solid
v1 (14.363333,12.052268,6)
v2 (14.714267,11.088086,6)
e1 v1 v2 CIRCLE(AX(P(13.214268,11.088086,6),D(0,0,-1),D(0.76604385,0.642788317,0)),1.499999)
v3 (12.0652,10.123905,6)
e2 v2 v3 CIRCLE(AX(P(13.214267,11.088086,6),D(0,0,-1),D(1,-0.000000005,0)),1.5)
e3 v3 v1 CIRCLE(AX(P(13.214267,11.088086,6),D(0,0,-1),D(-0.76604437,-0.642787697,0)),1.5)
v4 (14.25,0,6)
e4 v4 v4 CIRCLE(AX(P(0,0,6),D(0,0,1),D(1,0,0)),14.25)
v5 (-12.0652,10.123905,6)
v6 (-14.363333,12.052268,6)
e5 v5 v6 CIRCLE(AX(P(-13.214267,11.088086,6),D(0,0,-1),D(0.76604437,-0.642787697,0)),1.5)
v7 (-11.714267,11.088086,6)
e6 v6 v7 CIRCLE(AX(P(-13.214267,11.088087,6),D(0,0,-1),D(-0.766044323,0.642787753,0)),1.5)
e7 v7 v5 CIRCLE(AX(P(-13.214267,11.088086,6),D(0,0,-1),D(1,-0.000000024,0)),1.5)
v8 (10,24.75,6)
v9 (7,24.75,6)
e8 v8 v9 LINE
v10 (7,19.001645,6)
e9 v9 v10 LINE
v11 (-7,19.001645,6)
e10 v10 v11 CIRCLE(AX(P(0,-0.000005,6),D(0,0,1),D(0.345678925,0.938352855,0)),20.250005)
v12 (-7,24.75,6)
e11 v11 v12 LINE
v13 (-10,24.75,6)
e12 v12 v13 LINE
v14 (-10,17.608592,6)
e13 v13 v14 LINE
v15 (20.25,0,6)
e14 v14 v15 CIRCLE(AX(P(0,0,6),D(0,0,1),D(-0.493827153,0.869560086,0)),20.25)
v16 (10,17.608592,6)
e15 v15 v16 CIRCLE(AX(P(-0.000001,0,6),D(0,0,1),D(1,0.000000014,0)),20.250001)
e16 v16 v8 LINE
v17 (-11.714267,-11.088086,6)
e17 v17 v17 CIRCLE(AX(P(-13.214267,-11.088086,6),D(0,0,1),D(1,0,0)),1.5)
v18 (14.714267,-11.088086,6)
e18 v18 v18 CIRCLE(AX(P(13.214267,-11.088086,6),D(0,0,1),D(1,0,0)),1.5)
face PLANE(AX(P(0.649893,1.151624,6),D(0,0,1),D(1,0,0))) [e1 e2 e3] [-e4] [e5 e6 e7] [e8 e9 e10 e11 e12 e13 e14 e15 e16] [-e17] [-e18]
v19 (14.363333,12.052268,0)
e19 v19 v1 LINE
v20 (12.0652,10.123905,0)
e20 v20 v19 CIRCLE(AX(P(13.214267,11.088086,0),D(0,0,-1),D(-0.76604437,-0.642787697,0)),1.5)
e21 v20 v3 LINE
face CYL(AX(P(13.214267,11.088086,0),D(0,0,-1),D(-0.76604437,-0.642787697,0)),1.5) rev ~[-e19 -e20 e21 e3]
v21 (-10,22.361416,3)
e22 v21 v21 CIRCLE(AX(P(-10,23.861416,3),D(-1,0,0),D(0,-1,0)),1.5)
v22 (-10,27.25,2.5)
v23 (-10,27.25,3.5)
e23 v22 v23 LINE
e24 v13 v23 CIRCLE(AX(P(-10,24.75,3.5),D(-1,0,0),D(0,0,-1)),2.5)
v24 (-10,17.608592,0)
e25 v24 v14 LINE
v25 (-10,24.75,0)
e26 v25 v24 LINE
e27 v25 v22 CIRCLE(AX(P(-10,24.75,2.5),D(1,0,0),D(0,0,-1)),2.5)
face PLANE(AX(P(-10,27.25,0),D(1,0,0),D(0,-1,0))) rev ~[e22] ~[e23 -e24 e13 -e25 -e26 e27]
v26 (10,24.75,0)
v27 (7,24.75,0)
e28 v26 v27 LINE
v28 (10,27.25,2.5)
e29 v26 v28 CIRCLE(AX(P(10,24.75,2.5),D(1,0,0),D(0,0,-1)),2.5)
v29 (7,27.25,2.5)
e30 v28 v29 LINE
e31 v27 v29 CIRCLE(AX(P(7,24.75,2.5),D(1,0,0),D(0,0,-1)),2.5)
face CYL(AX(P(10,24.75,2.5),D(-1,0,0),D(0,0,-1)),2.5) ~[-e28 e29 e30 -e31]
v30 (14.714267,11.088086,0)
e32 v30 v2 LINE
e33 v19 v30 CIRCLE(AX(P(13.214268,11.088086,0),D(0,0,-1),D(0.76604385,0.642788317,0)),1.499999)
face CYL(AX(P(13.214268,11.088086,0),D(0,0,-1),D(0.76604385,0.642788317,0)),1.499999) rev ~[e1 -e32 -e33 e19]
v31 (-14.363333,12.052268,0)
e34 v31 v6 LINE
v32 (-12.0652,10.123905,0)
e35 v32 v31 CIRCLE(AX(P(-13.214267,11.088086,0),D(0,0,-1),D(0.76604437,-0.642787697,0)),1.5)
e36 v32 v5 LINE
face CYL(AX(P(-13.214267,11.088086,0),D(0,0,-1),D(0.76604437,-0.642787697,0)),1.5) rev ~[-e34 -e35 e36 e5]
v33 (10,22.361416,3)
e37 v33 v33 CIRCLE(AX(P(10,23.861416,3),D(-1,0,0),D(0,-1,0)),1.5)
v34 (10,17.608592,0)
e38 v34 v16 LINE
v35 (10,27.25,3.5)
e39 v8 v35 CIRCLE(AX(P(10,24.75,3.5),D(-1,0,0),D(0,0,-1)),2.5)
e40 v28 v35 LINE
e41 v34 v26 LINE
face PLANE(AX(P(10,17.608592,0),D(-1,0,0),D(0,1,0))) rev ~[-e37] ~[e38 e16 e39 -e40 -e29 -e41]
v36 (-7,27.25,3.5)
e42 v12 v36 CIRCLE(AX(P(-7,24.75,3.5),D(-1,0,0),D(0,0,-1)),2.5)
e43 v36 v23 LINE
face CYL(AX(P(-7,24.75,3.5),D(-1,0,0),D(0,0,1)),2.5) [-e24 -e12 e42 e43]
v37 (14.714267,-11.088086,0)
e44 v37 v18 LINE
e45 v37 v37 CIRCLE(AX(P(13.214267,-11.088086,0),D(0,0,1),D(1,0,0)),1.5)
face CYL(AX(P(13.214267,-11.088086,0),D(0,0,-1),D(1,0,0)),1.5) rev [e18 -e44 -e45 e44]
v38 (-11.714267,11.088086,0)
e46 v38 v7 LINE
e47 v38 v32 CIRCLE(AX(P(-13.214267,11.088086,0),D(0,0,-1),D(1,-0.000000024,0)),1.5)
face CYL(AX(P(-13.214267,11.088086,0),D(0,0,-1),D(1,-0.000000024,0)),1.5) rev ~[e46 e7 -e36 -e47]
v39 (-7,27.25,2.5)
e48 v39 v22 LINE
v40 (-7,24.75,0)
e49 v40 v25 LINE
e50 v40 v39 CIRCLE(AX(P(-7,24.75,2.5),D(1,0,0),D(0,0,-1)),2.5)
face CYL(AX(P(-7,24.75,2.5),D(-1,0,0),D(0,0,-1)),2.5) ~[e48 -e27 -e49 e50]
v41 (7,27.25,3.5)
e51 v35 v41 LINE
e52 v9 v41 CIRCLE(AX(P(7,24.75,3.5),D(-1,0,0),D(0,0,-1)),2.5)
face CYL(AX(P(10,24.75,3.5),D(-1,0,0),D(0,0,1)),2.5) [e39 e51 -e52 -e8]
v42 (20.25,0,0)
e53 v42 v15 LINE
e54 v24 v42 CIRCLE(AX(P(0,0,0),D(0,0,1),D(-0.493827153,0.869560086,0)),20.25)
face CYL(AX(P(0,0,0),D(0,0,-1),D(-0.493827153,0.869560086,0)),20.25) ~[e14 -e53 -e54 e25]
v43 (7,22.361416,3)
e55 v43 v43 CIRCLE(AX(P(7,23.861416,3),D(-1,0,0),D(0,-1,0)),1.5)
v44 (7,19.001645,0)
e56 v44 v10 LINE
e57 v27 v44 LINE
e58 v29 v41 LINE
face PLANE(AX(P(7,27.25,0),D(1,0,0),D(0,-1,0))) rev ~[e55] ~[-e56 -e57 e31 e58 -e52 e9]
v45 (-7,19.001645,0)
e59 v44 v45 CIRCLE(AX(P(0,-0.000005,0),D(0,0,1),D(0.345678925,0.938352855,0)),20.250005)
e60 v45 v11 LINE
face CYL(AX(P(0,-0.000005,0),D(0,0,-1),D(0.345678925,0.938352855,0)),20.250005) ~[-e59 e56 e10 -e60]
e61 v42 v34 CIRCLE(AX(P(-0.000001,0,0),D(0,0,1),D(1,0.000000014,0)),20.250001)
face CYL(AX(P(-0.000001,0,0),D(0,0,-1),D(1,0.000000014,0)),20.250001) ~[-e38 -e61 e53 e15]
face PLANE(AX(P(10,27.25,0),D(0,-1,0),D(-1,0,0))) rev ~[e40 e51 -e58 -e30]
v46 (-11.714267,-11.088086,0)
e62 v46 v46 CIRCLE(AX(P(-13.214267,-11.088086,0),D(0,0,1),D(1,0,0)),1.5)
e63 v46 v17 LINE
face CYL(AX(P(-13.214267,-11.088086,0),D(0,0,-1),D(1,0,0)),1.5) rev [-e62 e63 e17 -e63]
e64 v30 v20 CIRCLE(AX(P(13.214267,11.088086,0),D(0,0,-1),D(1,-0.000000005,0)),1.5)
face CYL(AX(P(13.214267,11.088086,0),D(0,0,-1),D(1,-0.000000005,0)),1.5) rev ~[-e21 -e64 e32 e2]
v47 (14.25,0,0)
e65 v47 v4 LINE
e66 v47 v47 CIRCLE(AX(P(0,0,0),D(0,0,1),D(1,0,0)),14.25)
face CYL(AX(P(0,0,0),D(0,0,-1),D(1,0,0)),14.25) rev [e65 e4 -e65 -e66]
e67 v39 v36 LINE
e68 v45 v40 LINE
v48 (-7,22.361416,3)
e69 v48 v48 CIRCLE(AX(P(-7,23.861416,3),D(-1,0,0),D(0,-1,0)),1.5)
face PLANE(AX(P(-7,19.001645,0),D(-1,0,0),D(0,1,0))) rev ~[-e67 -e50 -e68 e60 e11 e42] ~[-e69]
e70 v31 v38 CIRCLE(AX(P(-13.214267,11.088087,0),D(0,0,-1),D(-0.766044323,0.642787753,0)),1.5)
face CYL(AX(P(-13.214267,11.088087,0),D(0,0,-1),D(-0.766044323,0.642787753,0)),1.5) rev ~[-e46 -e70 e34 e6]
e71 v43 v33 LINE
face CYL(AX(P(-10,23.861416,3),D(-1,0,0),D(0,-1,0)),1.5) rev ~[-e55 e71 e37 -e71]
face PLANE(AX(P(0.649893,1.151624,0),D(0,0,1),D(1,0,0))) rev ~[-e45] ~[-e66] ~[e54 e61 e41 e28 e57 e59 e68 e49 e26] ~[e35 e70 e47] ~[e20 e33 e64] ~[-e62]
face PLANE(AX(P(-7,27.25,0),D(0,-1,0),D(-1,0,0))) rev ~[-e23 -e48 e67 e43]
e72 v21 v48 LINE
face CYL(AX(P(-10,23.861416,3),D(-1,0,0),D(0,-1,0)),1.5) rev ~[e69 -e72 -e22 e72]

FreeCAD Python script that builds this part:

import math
import FreeCAD as App
import Part
import Sketcher


def edges_at(feature, points):
    """Names of the edges that pass closest to the given points."""
    edges = feature.Shape.Edges
    near = lambda p: min(range(len(edges)), key=lambda i: edges[i].distToShape(Part.Vertex(*p))[0])
    return sorted({f"Edge{near(p) + 1}" for p in points})

doc = App.newDocument("Part")
body = doc.addObject("PartDesign::Body", "Body")

sketch1 = doc.addObject("Sketcher::SketchObject", "Sketch")
body.addObject(sketch1)
sketch1.AttachmentSupport = (doc.XY_Plane, [""])
sketch1.MapMode = "FlatFace"
sketch1.addGeometry(Part.ArcOfCircle(Part.Circle(App.Vector(0, 0, 0), App.Vector(0, 0, 1), 20.3), math.radians(120), math.radians(360)), False)
sketch1.addGeometry(Part.ArcOfCircle(Part.Circle(App.Vector(0, 0, 0), App.Vector(0, 0, 1), 20.3), math.radians(0), math.radians(60)), False)
sketch1.addGeometry(Part.LineSegment(App.Vector(10, 17.6, 0), App.Vector(10, 27.2, 0)), False)
sketch1.addGeometry(Part.LineSegment(App.Vector(10, 27.2, 0), App.Vector(7, 27.2, 0)), False)
sketch1.addGeometry(Part.LineSegment(App.Vector(7, 27.2, 0), App.Vector(7, 19, 0)), False)
sketch1.addGeometry(Part.ArcOfCircle(Part.Circle(App.Vector(0, 0, 0), App.Vector(0, 0, 1), 20.3), math.radians(70), math.radians(110)), False)
sketch1.addGeometry(Part.LineSegment(App.Vector(-7, 19, 0), App.Vector(-7, 27.2, 0)), False)
sketch1.addGeometry(Part.LineSegment(App.Vector(-7, 27.2, 0), App.Vector(-10, 27.2, 0)), False)
sketch1.addGeometry(Part.LineSegment(App.Vector(-10, 27.2, 0), App.Vector(-10, 17.6, 0)), False)
sketch1.addGeometry(Part.Circle(App.Vector(-13.2, -11.1, 0), App.Vector(0, 0, 1), 1.5), False)
sketch1.addGeometry(Part.Circle(App.Vector(13.2, -11.1, 0), App.Vector(0, 0, 1), 1.5), False)
sketch1.addGeometry(Part.Circle(App.Vector(0, 0, 0), App.Vector(0, 0, 1), 14.2), False)
sketch1.addGeometry(Part.ArcOfCircle(Part.Circle(App.Vector(-13.2, 11.1, 0), App.Vector(0, 0, 1), 1.5), math.radians(0), math.radians(140)), False)
sketch1.addGeometry(Part.ArcOfCircle(Part.Circle(App.Vector(-13.2, 11.1, 0), App.Vector(0, 0, 1), 1.5), math.radians(-40), math.radians(0)), False)
sketch1.addGeometry(Part.ArcOfCircle(Part.Circle(App.Vector(-13.2, 11.1, 0), App.Vector(0, 0, 1), 1.5), math.radians(140), math.radians(320)), False)
sketch1.addGeometry(Part.ArcOfCircle(Part.Circle(App.Vector(13.2, 11.1, 0), App.Vector(0, 0, 1), 1.5), math.radians(0), math.radians(40)), False)
sketch1.addGeometry(Part.ArcOfCircle(Part.Circle(App.Vector(13.2, 11.1, 0), App.Vector(0, 0, 1), 1.5), math.radians(-140), math.radians(0)), False)
sketch1.addGeometry(Part.ArcOfCircle(Part.Circle(App.Vector(13.2, 11.1, 0), App.Vector(0, 0, 1), 1.5), math.radians(40), math.radians(220)), False)
sketch1.addConstraint(Sketcher.Constraint("Tangent", 0, 2, 1, 1))
sketch1.addConstraint(Sketcher.Constraint("Coincident", 1, 2, 2, 1))
sketch1.addConstraint(Sketcher.Constraint("Coincident", 2, 2, 3, 1))
sketch1.addConstraint(Sketcher.Constraint("Coincident", 3, 2, 4, 1))
sketch1.addConstraint(Sketcher.Constraint("Coincident", 4, 2, 5, 1))
sketch1.addConstraint(Sketcher.Constraint("Coincident", 5, 2, 6, 1))
sketch1.addConstraint(Sketcher.Constraint("Coincident", 6, 2, 7, 1))
sketch1.addConstraint(Sketcher.Constraint("Coincident", 7, 2, 8, 1))
sketch1.addConstraint(Sketcher.Constraint("Coincident", 8, 2, 0, 1))
sketch1.addConstraint(Sketcher.Constraint("Tangent", 12, 1, 13, 2))
sketch1.addConstraint(Sketcher.Constraint("Tangent", 13, 1, 14, 2))
sketch1.addConstraint(Sketcher.Constraint("Tangent", 14, 1, 12, 2))
sketch1.addConstraint(Sketcher.Constraint("Tangent", 15, 1, 16, 2))
sketch1.addConstraint(Sketcher.Constraint("Tangent", 16, 1, 17, 2))
sketch1.addConstraint(Sketcher.Constraint("Tangent", 17, 1, 15, 2))
sketch1.addConstraint(Sketcher.Constraint("Vertical", 2))
sketch1.addConstraint(Sketcher.Constraint("Horizontal", 3))
sketch1.addConstraint(Sketcher.Constraint("Vertical", 4))
sketch1.addConstraint(Sketcher.Constraint("Vertical", 6))
sketch1.addConstraint(Sketcher.Constraint("Horizontal", 7))
sketch1.addConstraint(Sketcher.Constraint("Vertical", 8))
sketch1.addConstraint(Sketcher.Constraint("Coincident", 0, 3, -1, 1))
sketch1.addConstraint(Sketcher.Constraint("Coincident", 5, 3, -1, 1))
sketch1.addConstraint(Sketcher.Constraint("Coincident", 11, 3, -1, 1))
sketch1.addConstraint(Sketcher.Constraint("Equal", 0, 1))
sketch1.addConstraint(Sketcher.Constraint("Equal", 9, 10))
sketch1.addConstraint(Sketcher.Constraint("Equal", 10, 12))
sketch1.addConstraint(Sketcher.Constraint("Equal", 14, 15))
sketch1.addConstraint(Sketcher.Constraint("Symmetric", 10, 3, 12, 3, -1, 1))
sketch1.addConstraint(Sketcher.Constraint("Symmetric", 9, 3, 15, 3, -1, 1))
sketch1.addConstraint(Sketcher.Constraint("Symmetric", 9, 3, 10, 3, -2))
sketch1.addConstraint(Sketcher.Constraint("Symmetric", 3, 2, 6, 2, -2))
sketch1.addConstraint(Sketcher.Constraint("PointOnObject", 0, 2, -1))
sketch1.addConstraint(Sketcher.Constraint("Horizontal", 1, 2, 8, 2))
sketch1.addConstraint(Sketcher.Constraint("Horizontal", 17, 3, 12, 1))
sketch1.addConstraint(Sketcher.Constraint("Horizontal", 12, 1, 15, 1))
sketch1.addConstraint(Sketcher.Constraint("Horizontal", 13, 1, 16, 1))
sketch1.addConstraint(Sketcher.Constraint("Horizontal", 14, 1, 17, 1))
sketch1.addConstraint(Sketcher.Constraint("Diameter", 9, 3.0))
sketch1.addConstraint(Sketcher.Constraint("Diameter", 11, 28.5))
sketch1.addConstraint(Sketcher.Constraint("DistanceX", 3, 2, 3, 1, 3.0))
sketch1.addConstraint(Sketcher.Constraint("Radius", 0, 20.25))
sketch1.addConstraint(Sketcher.Constraint("DistanceX", -1, 1, 1, 2, 10.0))
sketch1.addConstraint(Sketcher.Constraint("DistanceY", -1, 1, 2, 2, 27.25))
sketch1.addConstraint(Sketcher.Constraint("Radius", 5, 20.250005))
sketch1.addConstraint(Sketcher.Constraint("DistanceX", 13, 1, -1, 1, 12.0652))
sketch1.addConstraint(Sketcher.Constraint("DistanceY", -1, 1, 14, 1, 12.052268))
sketch1.addConstraint(Sketcher.Constraint("DistanceY", 9, 3, 5, 3, 11.088081))
sketch1.addConstraint(Sketcher.Constraint("DistanceX", 1, 3, 10, 3, 13.214268))
pad1 = doc.addObject("PartDesign::Pad", "Pad")
body.addObject(pad1)
pad1.Profile = sketch1
pad1.Length = 6

sketch2 = doc.addObject("Sketcher::SketchObject", "Sketch001")
body.addObject(sketch2)
sketch2.AttachmentSupport = (doc.YZ_Plane, [""])
sketch2.MapMode = "FlatFace"
sketch2.AttachmentOffset = App.Placement(App.Vector(0, 0, -10), App.Rotation())
sketch2.addGeometry(Part.Circle(App.Vector(23.9, 3, 0), App.Vector(0, 0, 1), 1.5), False)
sketch2.addConstraint(Sketcher.Constraint("Diameter", 0, 3.0))
sketch2.addConstraint(Sketcher.Constraint("DistanceY", -1, 1, 0, 3, 3.0))
sketch2.addConstraint(Sketcher.Constraint("DistanceX", -1, 1, 0, 3, 23.861416))
pocket1 = doc.addObject("PartDesign::Pocket", "Pocket")
body.addObject(pocket1)
pocket1.Profile = sketch2
pocket1.Type = "ThroughAll"
pocket1.Reversed = True
doc.recompute()

fillet = doc.addObject("PartDesign::Fillet", "Fillet")
body.addObject(fillet)
fillet.Base = (pocket1, edges_at(pocket1, [
    (8.5, 27.25, 6),
    (8.5, 27.25, 0),
    (-8.5, 27.25, 0),
    (-8.5, 27.25, 6),
]))
fillet.Radius = 2.5

doc.recompute()
